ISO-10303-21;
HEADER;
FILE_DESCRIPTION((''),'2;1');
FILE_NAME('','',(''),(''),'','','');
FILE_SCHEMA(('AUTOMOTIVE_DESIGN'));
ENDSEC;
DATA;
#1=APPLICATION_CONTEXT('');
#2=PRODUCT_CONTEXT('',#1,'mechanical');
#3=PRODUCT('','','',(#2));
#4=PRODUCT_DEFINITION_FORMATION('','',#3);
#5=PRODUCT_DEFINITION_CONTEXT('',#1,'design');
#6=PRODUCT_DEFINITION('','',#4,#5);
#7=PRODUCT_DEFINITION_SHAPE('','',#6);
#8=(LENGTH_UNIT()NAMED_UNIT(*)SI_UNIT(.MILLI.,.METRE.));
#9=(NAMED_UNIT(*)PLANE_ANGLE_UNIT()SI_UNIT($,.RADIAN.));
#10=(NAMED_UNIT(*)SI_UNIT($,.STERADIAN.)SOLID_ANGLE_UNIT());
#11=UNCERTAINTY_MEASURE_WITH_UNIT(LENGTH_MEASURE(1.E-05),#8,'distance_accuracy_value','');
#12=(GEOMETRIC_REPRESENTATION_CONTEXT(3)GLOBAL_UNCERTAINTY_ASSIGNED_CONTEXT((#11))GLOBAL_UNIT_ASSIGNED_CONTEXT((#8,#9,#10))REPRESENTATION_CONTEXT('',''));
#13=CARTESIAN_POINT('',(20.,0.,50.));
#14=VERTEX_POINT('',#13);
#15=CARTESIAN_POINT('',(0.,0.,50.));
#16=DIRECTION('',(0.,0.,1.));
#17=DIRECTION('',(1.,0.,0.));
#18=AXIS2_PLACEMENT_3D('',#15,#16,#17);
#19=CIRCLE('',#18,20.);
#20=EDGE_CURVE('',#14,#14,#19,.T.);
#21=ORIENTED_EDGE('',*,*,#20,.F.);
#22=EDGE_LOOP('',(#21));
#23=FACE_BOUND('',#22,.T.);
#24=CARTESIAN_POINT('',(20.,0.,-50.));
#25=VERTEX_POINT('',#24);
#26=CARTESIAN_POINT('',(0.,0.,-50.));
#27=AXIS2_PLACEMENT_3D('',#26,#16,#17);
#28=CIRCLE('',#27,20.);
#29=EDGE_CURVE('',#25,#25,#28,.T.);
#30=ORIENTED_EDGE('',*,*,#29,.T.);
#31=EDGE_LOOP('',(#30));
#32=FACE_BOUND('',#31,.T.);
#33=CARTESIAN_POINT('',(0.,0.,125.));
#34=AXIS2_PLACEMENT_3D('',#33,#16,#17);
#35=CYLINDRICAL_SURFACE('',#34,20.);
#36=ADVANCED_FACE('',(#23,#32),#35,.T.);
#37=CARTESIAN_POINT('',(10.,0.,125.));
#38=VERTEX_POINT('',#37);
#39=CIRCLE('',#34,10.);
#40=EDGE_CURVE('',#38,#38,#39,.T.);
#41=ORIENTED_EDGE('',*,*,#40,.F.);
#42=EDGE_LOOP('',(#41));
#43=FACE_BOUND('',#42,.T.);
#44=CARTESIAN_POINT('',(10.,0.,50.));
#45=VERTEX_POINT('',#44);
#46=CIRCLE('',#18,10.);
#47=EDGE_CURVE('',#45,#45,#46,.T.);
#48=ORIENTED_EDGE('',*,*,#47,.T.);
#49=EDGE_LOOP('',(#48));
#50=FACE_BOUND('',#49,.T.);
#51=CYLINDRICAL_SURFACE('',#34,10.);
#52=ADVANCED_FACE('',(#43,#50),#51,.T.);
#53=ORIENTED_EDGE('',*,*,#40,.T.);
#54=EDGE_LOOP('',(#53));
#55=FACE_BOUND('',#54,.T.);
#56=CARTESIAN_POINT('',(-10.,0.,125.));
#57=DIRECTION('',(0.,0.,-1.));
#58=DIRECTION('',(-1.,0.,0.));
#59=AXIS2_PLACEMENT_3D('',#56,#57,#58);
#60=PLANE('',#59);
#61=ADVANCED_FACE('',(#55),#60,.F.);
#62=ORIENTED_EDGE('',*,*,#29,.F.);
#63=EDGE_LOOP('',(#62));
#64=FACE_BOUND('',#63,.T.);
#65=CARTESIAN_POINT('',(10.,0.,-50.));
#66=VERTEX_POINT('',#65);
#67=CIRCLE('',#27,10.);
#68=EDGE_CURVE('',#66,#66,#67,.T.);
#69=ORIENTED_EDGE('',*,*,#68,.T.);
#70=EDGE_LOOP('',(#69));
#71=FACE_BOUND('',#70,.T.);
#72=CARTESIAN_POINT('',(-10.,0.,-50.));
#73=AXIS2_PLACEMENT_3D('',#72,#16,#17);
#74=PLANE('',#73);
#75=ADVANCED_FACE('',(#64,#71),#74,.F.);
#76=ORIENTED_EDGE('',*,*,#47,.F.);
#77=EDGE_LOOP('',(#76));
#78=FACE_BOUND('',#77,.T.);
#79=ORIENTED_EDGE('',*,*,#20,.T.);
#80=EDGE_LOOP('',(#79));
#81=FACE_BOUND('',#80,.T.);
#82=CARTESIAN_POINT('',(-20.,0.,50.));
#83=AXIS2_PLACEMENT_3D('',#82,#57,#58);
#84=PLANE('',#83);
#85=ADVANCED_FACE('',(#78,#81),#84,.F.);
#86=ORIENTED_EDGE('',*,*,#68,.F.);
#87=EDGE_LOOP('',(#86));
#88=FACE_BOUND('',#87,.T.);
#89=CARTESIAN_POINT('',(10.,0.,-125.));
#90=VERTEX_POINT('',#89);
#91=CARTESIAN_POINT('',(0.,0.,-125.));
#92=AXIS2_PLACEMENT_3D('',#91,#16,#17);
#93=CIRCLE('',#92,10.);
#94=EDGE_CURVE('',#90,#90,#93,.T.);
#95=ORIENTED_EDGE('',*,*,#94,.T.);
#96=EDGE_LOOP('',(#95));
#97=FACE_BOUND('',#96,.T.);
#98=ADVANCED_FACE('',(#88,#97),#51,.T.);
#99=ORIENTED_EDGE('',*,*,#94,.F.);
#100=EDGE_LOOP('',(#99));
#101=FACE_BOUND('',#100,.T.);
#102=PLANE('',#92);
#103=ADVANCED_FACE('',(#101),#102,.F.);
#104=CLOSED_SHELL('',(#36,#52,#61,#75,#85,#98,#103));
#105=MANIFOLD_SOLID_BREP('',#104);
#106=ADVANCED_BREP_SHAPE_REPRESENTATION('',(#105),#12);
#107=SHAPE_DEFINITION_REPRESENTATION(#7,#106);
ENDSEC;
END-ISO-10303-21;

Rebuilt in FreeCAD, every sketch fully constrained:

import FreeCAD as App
import Part
import Sketcher
from FreeCAD import Vector

doc = App.newDocument("Part")
body = doc.addObject("PartDesign::Body", "Body")

# Sketch on XZ plane
sketch1 = doc.addObject("Sketcher::SketchObject", "Sketch")
body.addObject(sketch1)
sketch1.AttachmentSupport = (doc.XZ_Plane, [""])
sketch1.MapMode = "FlatFace"
sketch1.addGeometry([
    Part.LineSegment(Vector(-10, -125, 0), Vector(-10, -50, 0)),  # 0
    Part.LineSegment(Vector(-10, -50, 0), Vector(-20, -50, 0)),  # 1
    Part.LineSegment(Vector(-20, -50, 0), Vector(-20, 50, 0)),  # 2
    Part.LineSegment(Vector(-20, 50, 0), Vector(-10, 50, 0)),  # 3
    Part.LineSegment(Vector(-10, 50, 0), Vector(-10, 125, 0)),  # 4
    Part.LineSegment(Vector(-10, 125, 0), Vector(0, 125, 0)),  # 5
    Part.LineSegment(Vector(0, 125, 0), Vector(0, -125, 0)),  # 6
    Part.LineSegment(Vector(0, -125, 0), Vector(-10, -125, 0)),  # 7
], False)
sketch1.addConstraint([
    Sketcher.Constraint("Coincident", 0, 2, 1, 1),
    Sketcher.Constraint("Coincident", 1, 2, 2, 1),
    Sketcher.Constraint("Coincident", 2, 2, 3, 1),
    Sketcher.Constraint("Coincident", 3, 2, 4, 1),
    Sketcher.Constraint("Coincident", 4, 2, 5, 1),
    Sketcher.Constraint("Coincident", 5, 2, 6, 1),
    Sketcher.Constraint("Coincident", 6, 2, 7, 1),
    Sketcher.Constraint("Coincident", 7, 2, 0, 1),
    Sketcher.Constraint("Vertical", 0),
    Sketcher.Constraint("Horizontal", 1),
    Sketcher.Constraint("Vertical", 2),
    Sketcher.Constraint("Horizontal", 3),
    Sketcher.Constraint("Vertical", 4),
    Sketcher.Constraint("Horizontal", 5),
    Sketcher.Constraint("Vertical", 6),
    Sketcher.Constraint("Horizontal", 7),
    Sketcher.Constraint("Symmetric", 5, 2, 6, 2, -1, 1),
    Sketcher.Constraint("Symmetric", 0, 2, 3, 2, -1),
    Sketcher.Constraint("Equal", 3, 5),
    Sketcher.Constraint("DistanceX", 1, 2, 1, 1, 10.0),
    Sketcher.Constraint("DistanceY", 0, 1, 0, 2, 75.0),
    Sketcher.Constraint("DistanceY", 2, 1, 2, 2, 100.0),
])
revolution = doc.addObject("PartDesign::Revolution", "Revolution")
body.addObject(revolution)
revolution.Profile = sketch1
revolution.ReferenceAxis = (sketch1, ["V_Axis"])
revolution.Angle = 360

doc.recompute()
